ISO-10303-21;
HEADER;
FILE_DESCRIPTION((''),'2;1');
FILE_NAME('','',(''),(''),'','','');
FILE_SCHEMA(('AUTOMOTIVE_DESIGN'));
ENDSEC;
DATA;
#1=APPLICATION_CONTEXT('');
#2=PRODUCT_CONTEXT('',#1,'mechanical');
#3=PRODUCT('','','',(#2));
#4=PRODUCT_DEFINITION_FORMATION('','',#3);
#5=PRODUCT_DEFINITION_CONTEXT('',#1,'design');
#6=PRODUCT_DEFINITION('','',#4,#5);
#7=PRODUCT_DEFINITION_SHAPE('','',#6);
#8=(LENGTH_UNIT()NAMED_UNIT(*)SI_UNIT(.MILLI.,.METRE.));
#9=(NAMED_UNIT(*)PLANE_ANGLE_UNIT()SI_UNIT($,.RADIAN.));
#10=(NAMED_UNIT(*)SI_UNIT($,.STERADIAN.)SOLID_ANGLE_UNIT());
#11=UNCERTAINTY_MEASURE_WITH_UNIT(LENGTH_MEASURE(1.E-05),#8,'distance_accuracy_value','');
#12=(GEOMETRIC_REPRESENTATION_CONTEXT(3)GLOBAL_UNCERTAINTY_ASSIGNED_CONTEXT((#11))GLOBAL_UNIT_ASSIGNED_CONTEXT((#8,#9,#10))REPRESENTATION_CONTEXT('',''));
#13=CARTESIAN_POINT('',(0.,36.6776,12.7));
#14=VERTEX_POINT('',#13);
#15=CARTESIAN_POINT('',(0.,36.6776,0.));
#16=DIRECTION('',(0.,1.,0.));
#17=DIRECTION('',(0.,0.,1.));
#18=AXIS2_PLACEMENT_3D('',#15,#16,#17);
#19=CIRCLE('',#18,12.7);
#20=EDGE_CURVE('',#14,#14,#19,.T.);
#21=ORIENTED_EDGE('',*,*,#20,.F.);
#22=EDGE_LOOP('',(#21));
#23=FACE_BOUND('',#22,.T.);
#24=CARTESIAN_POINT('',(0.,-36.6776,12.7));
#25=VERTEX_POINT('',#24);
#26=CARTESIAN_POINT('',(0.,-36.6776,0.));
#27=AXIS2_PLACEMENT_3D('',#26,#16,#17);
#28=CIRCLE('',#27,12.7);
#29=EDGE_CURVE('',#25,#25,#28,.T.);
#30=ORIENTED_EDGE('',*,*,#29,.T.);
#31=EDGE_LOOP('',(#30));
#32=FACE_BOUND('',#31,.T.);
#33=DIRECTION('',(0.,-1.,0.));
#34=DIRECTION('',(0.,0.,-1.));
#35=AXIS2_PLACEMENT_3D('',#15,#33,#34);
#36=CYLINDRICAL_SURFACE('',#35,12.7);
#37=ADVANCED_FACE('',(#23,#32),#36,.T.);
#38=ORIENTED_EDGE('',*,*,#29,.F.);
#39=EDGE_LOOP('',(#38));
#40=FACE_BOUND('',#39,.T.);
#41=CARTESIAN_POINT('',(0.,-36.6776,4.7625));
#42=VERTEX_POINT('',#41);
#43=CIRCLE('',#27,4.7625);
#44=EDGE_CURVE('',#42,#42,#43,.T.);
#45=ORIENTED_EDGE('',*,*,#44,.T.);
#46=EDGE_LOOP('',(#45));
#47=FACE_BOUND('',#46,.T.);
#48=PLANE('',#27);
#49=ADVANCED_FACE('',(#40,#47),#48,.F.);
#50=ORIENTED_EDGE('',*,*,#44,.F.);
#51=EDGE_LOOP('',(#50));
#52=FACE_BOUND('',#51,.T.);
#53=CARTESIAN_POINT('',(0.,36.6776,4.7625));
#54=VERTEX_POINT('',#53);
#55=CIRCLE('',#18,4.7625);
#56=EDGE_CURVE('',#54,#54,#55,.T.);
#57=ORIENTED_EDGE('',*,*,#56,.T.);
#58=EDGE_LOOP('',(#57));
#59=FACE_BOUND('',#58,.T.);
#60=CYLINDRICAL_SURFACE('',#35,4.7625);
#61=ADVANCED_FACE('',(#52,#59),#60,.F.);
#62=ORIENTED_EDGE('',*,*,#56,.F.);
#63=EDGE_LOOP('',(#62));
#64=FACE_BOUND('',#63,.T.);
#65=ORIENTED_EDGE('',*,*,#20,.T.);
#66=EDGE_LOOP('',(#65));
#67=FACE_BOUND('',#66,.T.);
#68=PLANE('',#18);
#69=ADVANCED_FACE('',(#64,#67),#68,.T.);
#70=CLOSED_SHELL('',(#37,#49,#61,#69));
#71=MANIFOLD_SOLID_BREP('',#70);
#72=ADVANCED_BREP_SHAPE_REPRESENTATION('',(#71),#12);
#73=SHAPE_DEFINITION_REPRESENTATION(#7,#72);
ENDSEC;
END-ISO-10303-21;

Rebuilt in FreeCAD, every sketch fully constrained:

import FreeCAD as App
import Part
import Sketcher
from FreeCAD import Vector
Q = App.Units.Quantity

doc = App.newDocument("Part")
body = doc.addObject("PartDesign::Body", "Body")

# Sketch on XZ plane
sketch1 = body.newObject("Sketcher::SketchObject", "Sketch")
sketch1.AttachmentSupport = (doc.getObject("XZ_Plane"), [""])
sketch1.MapMode = "FlatFace"
sketch1.addGeometry([
    Part.Circle(Vector(0, 0, 0), Vector(0, 0, 1), 12.7),
    Part.Circle(Vector(0, 0, 0), Vector(0, 0, 1), 4.8),
], False)
sketch1.addConstraint([
    Sketcher.Constraint("Coincident", 0, 3, -1, 1),
    Sketcher.Constraint("Coincident", 1, 3, -1, 1),
    Sketcher.Constraint("Diameter", 0, Q("1 in")),
    Sketcher.Constraint("Diameter", 1, Q("0.375 in")),
])
pad1 = body.newObject("PartDesign::Pad", "Pad")
pad1.Profile = sketch1
pad1.Length = Q("2.888 in")
pad1.Midplane = True

doc.recompute()
